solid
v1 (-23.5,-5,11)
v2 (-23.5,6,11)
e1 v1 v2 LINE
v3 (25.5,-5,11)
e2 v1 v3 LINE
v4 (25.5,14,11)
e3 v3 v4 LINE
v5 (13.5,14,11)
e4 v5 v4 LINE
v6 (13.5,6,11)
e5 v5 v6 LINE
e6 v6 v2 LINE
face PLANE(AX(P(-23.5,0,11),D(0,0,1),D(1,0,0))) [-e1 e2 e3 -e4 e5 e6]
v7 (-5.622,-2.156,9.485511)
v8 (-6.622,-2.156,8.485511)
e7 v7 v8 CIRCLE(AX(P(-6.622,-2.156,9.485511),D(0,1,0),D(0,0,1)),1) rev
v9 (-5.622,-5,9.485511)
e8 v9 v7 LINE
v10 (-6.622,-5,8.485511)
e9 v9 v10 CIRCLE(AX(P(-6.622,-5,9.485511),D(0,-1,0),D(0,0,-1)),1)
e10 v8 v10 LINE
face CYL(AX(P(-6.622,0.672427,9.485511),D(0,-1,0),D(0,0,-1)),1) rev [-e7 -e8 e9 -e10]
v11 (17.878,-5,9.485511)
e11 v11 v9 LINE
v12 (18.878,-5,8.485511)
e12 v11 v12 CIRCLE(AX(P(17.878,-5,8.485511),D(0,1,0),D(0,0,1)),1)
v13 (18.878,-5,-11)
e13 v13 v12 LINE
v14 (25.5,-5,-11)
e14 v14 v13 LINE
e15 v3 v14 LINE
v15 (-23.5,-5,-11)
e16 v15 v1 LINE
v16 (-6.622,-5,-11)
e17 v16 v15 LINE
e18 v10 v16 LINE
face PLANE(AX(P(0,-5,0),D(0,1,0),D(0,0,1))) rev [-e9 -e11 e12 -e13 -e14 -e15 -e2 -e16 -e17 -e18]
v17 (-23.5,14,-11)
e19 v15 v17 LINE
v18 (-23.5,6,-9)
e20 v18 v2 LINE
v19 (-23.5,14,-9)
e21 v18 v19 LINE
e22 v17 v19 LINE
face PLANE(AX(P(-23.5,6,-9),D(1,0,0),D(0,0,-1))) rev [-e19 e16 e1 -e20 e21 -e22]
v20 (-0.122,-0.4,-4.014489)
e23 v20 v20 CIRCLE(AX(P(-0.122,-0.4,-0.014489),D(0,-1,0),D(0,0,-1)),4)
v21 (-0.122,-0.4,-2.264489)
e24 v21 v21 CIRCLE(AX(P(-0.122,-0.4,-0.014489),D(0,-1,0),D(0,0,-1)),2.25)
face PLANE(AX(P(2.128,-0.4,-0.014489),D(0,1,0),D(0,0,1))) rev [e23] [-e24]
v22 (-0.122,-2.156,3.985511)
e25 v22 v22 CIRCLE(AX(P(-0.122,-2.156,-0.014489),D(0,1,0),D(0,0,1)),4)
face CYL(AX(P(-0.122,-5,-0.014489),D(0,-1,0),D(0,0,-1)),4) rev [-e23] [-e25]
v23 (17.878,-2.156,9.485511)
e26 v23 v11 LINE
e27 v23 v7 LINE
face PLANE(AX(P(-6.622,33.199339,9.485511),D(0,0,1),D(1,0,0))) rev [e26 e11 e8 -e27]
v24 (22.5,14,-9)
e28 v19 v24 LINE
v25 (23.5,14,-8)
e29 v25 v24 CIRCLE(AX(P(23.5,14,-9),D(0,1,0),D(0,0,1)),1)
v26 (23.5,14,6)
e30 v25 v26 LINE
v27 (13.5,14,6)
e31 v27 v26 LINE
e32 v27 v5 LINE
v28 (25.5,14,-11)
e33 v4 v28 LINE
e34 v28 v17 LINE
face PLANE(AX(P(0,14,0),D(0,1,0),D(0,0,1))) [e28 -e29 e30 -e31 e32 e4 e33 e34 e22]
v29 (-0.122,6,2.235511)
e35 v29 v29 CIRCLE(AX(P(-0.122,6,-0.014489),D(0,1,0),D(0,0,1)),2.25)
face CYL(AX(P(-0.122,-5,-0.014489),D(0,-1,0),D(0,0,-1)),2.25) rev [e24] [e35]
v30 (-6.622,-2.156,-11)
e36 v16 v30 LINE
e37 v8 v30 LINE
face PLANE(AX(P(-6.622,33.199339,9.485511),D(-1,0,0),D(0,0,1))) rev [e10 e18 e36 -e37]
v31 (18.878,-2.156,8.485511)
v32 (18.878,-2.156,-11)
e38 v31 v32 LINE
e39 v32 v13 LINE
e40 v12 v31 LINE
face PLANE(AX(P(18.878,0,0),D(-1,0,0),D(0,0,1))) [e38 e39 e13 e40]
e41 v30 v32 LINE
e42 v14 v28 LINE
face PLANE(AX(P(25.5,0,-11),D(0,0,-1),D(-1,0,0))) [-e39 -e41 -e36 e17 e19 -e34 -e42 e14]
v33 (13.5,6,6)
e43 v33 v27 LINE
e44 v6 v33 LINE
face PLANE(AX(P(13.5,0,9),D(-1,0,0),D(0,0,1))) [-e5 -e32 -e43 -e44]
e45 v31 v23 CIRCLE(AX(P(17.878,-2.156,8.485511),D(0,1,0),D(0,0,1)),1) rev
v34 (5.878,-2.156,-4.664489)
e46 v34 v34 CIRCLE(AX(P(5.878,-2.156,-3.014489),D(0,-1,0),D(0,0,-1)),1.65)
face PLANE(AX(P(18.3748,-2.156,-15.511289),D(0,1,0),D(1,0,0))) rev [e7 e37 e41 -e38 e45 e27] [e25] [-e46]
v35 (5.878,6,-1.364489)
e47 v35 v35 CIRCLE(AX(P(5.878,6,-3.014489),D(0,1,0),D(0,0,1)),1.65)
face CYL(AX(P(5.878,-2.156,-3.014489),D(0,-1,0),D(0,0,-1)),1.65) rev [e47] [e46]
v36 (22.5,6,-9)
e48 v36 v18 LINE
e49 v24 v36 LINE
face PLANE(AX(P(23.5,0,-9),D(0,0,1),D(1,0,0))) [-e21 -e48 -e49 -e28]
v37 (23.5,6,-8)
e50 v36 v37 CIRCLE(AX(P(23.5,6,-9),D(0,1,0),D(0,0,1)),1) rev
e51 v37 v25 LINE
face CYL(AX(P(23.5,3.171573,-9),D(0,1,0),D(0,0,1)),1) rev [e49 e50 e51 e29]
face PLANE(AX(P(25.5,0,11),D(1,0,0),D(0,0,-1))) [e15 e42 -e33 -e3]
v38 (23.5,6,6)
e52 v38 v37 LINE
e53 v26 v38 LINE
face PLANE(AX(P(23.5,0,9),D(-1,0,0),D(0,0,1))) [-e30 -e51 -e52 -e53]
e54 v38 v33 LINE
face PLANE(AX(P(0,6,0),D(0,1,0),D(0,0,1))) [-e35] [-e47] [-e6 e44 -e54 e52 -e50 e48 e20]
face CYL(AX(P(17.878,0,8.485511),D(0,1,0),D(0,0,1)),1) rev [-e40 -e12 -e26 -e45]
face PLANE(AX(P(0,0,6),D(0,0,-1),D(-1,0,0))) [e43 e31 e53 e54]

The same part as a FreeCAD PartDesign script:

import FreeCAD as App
import Part
import Sketcher
from FreeCAD import Vector


def edges_at(feature, points):
    """Names of the edges that pass closest to the given points."""
    edges = feature.Shape.Edges
    near = lambda p: min(range(len(edges)), key=lambda i: edges[i].distToShape(Part.Vertex(*p))[0])
    return sorted({f"Edge{near(p) + 1}" for p in points})


def add_polygon(sketch, points):
    """Adds a closed chain of lines whose ends are joined by coincident constraints."""
    first, n = sketch.GeometryCount, len(points)
    for a, b in zip(points, points[1:] + points[:1]):
        sketch.addGeometry(Part.LineSegment(App.Vector(*a, 0), App.Vector(*b, 0)), False)
    for i in range(n):
        sketch.addConstraint(Sketcher.Constraint("Coincident", first + i, 2, first + (i + 1) % n, 1))

doc = App.newDocument("Part")
body = doc.addObject("PartDesign::Body", "Body")

# Sketch on XZ plane
sketch1 = body.newObject("Sketcher::SketchObject", "Sketch")
sketch1.AttachmentSupport = (doc.getObject("XZ_Plane"), [""])
sketch1.MapMode = "FlatFace"
add_polygon(sketch1, [(-23.5, -9), (-23.5, 9), (23.5, 9), (23.5, -9)])  # lines 0-3
sketch1.addConstraint([
    Sketcher.Constraint("Vertical", 0),
    Sketcher.Constraint("Horizontal", 1),
    Sketcher.Constraint("Vertical", 2),
    Sketcher.Constraint("Horizontal", 3),
    Sketcher.Constraint("Symmetric", 0, 2, 2, 2, -1, 1),
    Sketcher.Constraint("DistanceX", 1, 1, 1, 2, 47.0),
    Sketcher.Constraint("DistanceY", 0, 1, 0, 2, 18.0),
])
pad1 = body.newObject("PartDesign::Pad", "Pad")
pad1.Profile = sketch1
pad1.Length = 6
pad1.Reversed = True

# Sketch on XZ plane
sketch2 = body.newObject("Sketcher::SketchObject", "Sketch001")
sketch2.AttachmentSupport = (doc.getObject("XZ_Plane"), [""])
sketch2.MapMode = "FlatFace"
sketch2.AttachmentOffset = App.Placement(Vector(0, 0, -6), App.Rotation())
add_polygon(sketch2, [(-23.5, -9), (23.5, -9), (23.5, 9), (-23.5, 9), (-23.5, 11), (25.5, 11), (25.5, -11), (-23.5, -11)])  # lines 0-7
sketch2.addConstraint([
    Sketcher.Constraint("Horizontal", 0),
    Sketcher.Constraint("Vertical", 1),
    Sketcher.Constraint("Horizontal", 2),
    Sketcher.Constraint("Vertical", 3),
    Sketcher.Constraint("Horizontal", 4),
    Sketcher.Constraint("Vertical", 5),
    Sketcher.Constraint("Horizontal", 6),
    Sketcher.Constraint("Vertical", 7),
    Sketcher.Constraint("Symmetric", 0, 2, 2, 2, -1, 1),
    Sketcher.Constraint("Symmetric", 3, 2, 6, 2, -1),
    Sketcher.Constraint("DistanceX", 0, 1, 0, 2, 47.0),
    Sketcher.Constraint("DistanceX", 4, 1, 4, 2, 49.0),
    Sketcher.Constraint("DistanceY", 1, 1, 1, 2, 18.0),
    Sketcher.Constraint("DistanceY", 3, 1, 3, 2, 2.0),
])
pad2 = body.newObject("PartDesign::Pad", "Pad001")
pad2.Profile = sketch2
pad2.Type = "TwoLengths"
pad2.Length = 8
pad2.Length2 = 6
pad2.Reversed = True

# Sketch on XZ plane
sketch3 = body.newObject("Sketcher::SketchObject", "Sketch002")
sketch3.AttachmentSupport = (doc.getObject("XZ_Plane"), [""])
sketch3.MapMode = "FlatFace"
add_polygon(sketch3, [(-23.5, -11), (-23.5, 11), (25.5, 11), (25.5, -11)])  # lines 0-3
sketch3.addConstraint([
    Sketcher.Constraint("Vertical", 0),
    Sketcher.Constraint("Horizontal", 1),
    Sketcher.Constraint("Vertical", 2),
    Sketcher.Constraint("Horizontal", 3),
    Sketcher.Constraint("DistanceX", 1, 1, 1, 2, 49.0),
    Sketcher.Constraint("DistanceY", 0, 1, 0, 2, 22.0),
    Sketcher.Constraint("DistanceY", -1, 1, 0, 2, 11.0),
    Sketcher.Constraint("DistanceX", 0, 2, -1, 1, 23.5),
])
pad3 = body.newObject("PartDesign::Pad", "Pad002")
pad3.Profile = sketch3
pad3.Length = 5

# Sketch on YZ plane
sketch4 = body.newObject("Sketcher::SketchObject", "Sketch003")
sketch4.AttachmentSupport = (doc.getObject("YZ_Plane"), [""])
sketch4.MapMode = "FlatFace"
sketch4.AttachmentOffset = App.Placement(Vector(0, 0, -23.5), App.Rotation())
add_polygon(sketch4, [(14, 9), (6, 9), (6, 11), (14, 11)])  # lines 0-3
sketch4.addConstraint([
    Sketcher.Constraint("Horizontal", 0),
    Sketcher.Constraint("Vertical", 1),
    Sketcher.Constraint("Horizontal", 2),
    Sketcher.Constraint("Vertical", 3),
    Sketcher.Constraint("DistanceX", 0, 2, 0, 1, 8.0),
    Sketcher.Constraint("DistanceY", 1, 1, 1, 2, 2.0),
    Sketcher.Constraint("DistanceX", -1, 1, 0, 2, 6.0),
    Sketcher.Constraint("DistanceY", -1, 1, 0, 2, 9.0),
])
pocket1 = body.newObject("PartDesign::Pocket", "Pocket")
pocket1.Profile = sketch4
pocket1.Length = 37
pocket1.Reversed = True

# Sketch on XY plane
sketch5 = body.newObject("Sketcher::SketchObject", "Sketch004")
sketch5.AttachmentSupport = (doc.getObject("XY_Plane"), [""])
sketch5.MapMode = "FlatFace"
sketch5.AttachmentOffset = App.Placement(Vector(0, 0, 9), App.Rotation())
add_polygon(sketch5, [(23.5, 14), (23.5, 6), (13.5, 6), (13.5, 14)])  # lines 0-3
sketch5.addConstraint([
    Sketcher.Constraint("Vertical", 0),
    Sketcher.Constraint("Horizontal", 1),
    Sketcher.Constraint("Vertical", 2),
    Sketcher.Constraint("Horizontal", 3),
    Sketcher.Constraint("DistanceX", 1, 2, 1, 1, 10.0),
    Sketcher.Constraint("DistanceY", 0, 2, 0, 1, 8.0),
    Sketcher.Constraint("DistanceY", -1, 1, 0, 2, 6.0),
    Sketcher.Constraint("DistanceX", -1, 1, 0, 2, 23.5),
])
pad4 = body.newObject("PartDesign::Pad", "Pad003")
pad4.Profile = sketch5
pad4.Length = 3
pad4.Reversed = True

# Sketch on XZ plane
sketch6 = body.newObject("Sketcher::SketchObject", "Sketch005")
sketch6.AttachmentSupport = (doc.getObject("XZ_Plane"), [""])
sketch6.MapMode = "FlatFace"
sketch6.AttachmentOffset = App.Placement(Vector(0, 0, -14), App.Rotation())
sketch6.addGeometry(Part.Circle(Vector(23.5, -9, 0), Vector(0, 0, 1), 1), False)
sketch6.addConstraint([
    Sketcher.Constraint("Diameter", 0, 2.0),
    Sketcher.Constraint("DistanceY", 0, 3, -1, 1, 9.0),
    Sketcher.Constraint("DistanceX", -1, 1, 0, 3, 23.5),
])
pocket2 = body.newObject("PartDesign::Pocket", "Pocket001")
pocket2.Profile = sketch6
pocket2.Length = 8
pocket2.Reversed = True

# Sketch on XZ plane
sketch7 = body.newObject("Sketcher::SketchObject", "Sketch006")
sketch7.AttachmentSupport = (doc.getObject("XZ_Plane"), [""])
sketch7.MapMode = "FlatFace"
sketch7.AttachmentOffset = App.Placement(Vector(0, 0, 2.156), App.Rotation())
add_polygon(sketch7, [(-6.622, 9.485511), (-6.622, -15.514489), (18.378, -15.514489), (18.378, 9.485511)])  # lines 0-3
sketch7.addConstraint([
    Sketcher.Constraint("Vertical", 0),
    Sketcher.Constraint("Horizontal", 1),
    Sketcher.Constraint("Vertical", 2),
    Sketcher.Constraint("Horizontal", 3),
    Sketcher.Constraint("Equal", 3, 0),
    Sketcher.Constraint("DistanceX", 1, 1, 1, 2, 25.0),
    Sketcher.Constraint("DistanceX", 0, 2, -1, 1, 6.622),
    Sketcher.Constraint("DistanceY", 0, 2, -1, 1, 15.514489),
])
pocket3 = body.newObject("PartDesign::Pocket", "Pocket002")
pocket3.Profile = sketch7
pocket3.Length = 2.844
pocket3.Reversed = True

# Sketch on XZ plane
sketch8 = body.newObject("Sketcher::SketchObject", "Sketch007")
sketch8.AttachmentSupport = (doc.getObject("XZ_Plane"), [""])
sketch8.MapMode = "FlatFace"
sketch8.AttachmentOffset = App.Placement(Vector(0, 0, 5), App.Rotation())
sketch8.addGeometry(Part.Circle(Vector(-0.122, -0.014489, 0), Vector(0, 0, 1), 2.25), False)
sketch8.addConstraint([
    Sketcher.Constraint("Diameter", 0, 4.5),
    Sketcher.Constraint("DistanceX", 0, 3, -1, 1, 0.122),
    Sketcher.Constraint("DistanceY", 0, 3, -1, 1, 0.014489),
])
doc.recompute()
hole = body.newObject("PartDesign::Hole", "Hole")
hole.Profile = sketch8
hole.ThreadType = "None"
hole.Diameter = 4.5
hole.DepthType = "ThroughAll"
hole.HoleCutType = "Counterbore"
hole.HoleCutDiameter = 8
hole.HoleCutDepth = 4.6

# Sketch on XZ plane
sketch9 = body.newObject("Sketcher::SketchObject", "Sketch008")
sketch9.AttachmentSupport = (doc.getObject("XZ_Plane"), [""])
sketch9.MapMode = "FlatFace"
sketch9.AttachmentOffset = App.Placement(Vector(0, 0, 2.156), App.Rotation())
sketch9.addGeometry(Part.Circle(Vector(5.878, -3.014489, 0), Vector(0, 0, 1), 1.65), False)
sketch9.addConstraint([
    Sketcher.Constraint("Diameter", 0, 3.3),
    Sketcher.Constraint("DistanceX", -1, 1, 0, 3, 5.878),
    Sketcher.Constraint("DistanceY", 0, 3, -1, 1, 3.014489),
])
doc.recompute()
hole2 = body.newObject("PartDesign::Hole", "Hole001")
hole2.Profile = sketch9
hole2.ThreadType = "None"
hole2.Diameter = 3.3
hole2.DepthType = "ThroughAll"

# Sketch on YZ plane
sketch10 = body.newObject("Sketcher::SketchObject", "Sketch009")
sketch10.AttachmentSupport = (doc.getObject("YZ_Plane"), [""])
sketch10.MapMode = "FlatFace"
sketch10.AttachmentOffset = App.Placement(Vector(0, 0, 18.378), App.Rotation())
add_polygon(sketch10, [(-2.156, -11), (-5, -11), (-5, 9.485511), (-2.156, 9.485511)])  # lines 0-3
sketch10.addConstraint([
    Sketcher.Constraint("Horizontal", 0),
    Sketcher.Constraint("Vertical", 1),
    Sketcher.Constraint("Horizontal", 2),
    Sketcher.Constraint("Vertical", 3),
    Sketcher.Constraint("DistanceX", 0, 2, -1, 1, 5.0),
    Sketcher.Constraint("DistanceY", 0, 2, -1, 1, 11.0),
    Sketcher.Constraint("DistanceX", 0, 2, 0, 1, 2.844),
    Sketcher.Constraint("DistanceY", 1, 1, 1, 2, 20.485511),
])
pocket4 = body.newObject("PartDesign::Pocket", "Pocket003")
pocket4.Profile = sketch10
pocket4.Length = 0.5
pocket4.Reversed = True

# Sketch on XZ plane
sketch11 = body.newObject("Sketcher::SketchObject", "Sketch010")
sketch11.AttachmentSupport = (doc.getObject("XZ_Plane"), [""])
sketch11.MapMode = "FlatFace"
sketch11.AttachmentOffset = App.Placement(Vector(0, 0, 5), App.Rotation())
sketch11.addGeometry(Part.Circle(Vector(-6.622, 9.485511, 0), Vector(0, 0, 1), 1), False)
sketch11.addConstraint([
    Sketcher.Constraint("Diameter", 0, 2.0),
    Sketcher.Constraint("DistanceX", 0, 3, -1, 1, 6.622),
    Sketcher.Constraint("DistanceY", -1, 1, 0, 3, 9.485511),
])
pocket5 = body.newObject("PartDesign::Pocket", "Pocket004")
pocket5.Profile = sketch11
pocket5.Length = 2.844
doc.recompute()

fillet = body.newObject("PartDesign::Fillet", "Fillet")
fillet.Base = (pocket5, edges_at(pocket5, [(18.878, -3.578, 9.486)]))
fillet.Radius = 1

doc.recompute()
